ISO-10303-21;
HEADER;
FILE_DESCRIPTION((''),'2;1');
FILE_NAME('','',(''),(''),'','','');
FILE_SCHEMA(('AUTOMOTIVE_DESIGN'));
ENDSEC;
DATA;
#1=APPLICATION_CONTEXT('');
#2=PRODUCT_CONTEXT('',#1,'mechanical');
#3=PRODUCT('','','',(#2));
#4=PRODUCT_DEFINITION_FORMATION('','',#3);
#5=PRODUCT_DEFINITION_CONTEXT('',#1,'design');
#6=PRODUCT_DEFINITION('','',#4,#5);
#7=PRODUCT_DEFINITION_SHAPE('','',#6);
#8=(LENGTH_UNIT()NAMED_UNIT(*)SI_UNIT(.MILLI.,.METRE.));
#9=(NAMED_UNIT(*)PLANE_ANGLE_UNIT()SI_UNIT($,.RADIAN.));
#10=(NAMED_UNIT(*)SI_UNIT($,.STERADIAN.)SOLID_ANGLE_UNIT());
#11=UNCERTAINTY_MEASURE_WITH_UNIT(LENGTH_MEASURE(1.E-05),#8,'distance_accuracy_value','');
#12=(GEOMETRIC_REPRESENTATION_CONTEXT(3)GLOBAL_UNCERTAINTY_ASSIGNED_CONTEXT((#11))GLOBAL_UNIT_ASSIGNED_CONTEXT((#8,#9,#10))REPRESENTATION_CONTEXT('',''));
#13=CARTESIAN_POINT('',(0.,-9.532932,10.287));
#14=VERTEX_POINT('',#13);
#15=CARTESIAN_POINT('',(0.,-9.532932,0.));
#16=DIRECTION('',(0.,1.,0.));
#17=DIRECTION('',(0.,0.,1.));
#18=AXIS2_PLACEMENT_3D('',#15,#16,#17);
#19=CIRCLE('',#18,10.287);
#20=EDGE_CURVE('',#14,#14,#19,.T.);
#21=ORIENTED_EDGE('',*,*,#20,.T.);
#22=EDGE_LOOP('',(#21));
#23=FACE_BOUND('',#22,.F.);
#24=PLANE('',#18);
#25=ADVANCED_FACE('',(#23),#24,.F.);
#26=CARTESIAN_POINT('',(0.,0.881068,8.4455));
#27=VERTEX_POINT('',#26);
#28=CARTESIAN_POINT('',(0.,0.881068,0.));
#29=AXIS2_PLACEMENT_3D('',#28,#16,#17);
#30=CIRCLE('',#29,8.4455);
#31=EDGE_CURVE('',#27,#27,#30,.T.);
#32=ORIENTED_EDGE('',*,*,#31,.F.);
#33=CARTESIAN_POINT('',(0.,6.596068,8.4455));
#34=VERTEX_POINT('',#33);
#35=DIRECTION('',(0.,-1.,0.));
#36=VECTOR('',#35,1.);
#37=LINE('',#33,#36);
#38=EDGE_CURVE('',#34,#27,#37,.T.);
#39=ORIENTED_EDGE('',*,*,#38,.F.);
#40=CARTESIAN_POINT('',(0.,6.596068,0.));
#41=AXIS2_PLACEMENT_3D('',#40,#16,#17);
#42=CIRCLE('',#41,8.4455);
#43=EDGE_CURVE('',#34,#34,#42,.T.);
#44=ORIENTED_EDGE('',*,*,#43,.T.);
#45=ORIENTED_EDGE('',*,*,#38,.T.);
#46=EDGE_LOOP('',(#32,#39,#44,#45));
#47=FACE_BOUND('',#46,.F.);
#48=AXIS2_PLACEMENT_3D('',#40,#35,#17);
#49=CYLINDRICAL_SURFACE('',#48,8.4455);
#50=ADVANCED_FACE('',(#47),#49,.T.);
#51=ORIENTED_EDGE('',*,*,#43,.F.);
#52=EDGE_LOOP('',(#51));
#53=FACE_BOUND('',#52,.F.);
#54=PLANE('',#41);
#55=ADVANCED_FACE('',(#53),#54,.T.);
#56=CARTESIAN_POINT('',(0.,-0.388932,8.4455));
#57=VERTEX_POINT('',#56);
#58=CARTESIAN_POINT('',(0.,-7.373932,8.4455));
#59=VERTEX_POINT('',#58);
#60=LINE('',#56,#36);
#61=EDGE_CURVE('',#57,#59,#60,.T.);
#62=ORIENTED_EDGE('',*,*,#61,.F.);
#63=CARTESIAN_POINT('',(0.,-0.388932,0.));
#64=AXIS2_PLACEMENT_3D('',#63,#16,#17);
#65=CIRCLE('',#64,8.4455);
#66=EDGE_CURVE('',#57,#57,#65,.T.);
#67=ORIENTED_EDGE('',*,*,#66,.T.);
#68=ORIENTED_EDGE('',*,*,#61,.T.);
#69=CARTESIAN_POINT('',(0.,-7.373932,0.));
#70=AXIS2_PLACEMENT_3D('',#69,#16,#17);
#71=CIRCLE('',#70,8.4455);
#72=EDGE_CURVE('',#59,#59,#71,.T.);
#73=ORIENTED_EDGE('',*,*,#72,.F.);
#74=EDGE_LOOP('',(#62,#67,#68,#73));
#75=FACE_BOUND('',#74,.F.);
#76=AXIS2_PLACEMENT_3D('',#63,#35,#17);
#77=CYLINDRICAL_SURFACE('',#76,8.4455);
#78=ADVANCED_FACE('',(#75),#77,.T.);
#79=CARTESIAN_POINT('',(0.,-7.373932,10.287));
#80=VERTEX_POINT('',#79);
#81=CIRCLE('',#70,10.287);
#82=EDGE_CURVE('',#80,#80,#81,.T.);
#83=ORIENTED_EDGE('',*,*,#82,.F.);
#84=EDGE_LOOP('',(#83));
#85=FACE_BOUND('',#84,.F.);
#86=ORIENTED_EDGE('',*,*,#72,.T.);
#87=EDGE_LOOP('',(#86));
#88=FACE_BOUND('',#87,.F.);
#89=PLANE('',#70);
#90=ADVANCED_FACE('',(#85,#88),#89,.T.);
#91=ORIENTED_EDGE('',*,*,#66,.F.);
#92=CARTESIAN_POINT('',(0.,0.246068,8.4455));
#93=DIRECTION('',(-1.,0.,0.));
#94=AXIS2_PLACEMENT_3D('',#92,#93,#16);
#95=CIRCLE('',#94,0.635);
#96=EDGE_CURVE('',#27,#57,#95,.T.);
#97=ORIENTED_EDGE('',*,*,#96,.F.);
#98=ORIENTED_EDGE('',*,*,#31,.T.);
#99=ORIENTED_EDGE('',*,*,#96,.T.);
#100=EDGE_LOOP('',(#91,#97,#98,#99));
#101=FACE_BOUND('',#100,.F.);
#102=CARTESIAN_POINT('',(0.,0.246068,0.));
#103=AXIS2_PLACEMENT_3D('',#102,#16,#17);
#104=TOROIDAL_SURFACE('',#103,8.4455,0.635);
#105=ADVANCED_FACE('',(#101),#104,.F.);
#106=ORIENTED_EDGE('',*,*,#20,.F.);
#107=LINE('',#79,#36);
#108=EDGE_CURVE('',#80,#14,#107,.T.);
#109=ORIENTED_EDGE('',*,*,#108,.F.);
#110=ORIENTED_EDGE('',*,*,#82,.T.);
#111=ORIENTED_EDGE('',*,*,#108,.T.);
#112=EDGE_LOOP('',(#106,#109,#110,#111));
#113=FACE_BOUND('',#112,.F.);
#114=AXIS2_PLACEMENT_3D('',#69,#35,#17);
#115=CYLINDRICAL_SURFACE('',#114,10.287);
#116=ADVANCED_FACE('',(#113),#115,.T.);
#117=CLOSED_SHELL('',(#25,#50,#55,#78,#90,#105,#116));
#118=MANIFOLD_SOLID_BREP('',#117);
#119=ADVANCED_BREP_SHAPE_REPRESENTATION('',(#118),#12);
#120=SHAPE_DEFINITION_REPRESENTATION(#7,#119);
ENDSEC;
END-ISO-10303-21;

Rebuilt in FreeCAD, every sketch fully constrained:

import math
import FreeCAD as App
import Part
import Sketcher
from FreeCAD import Vector
Q = App.Units.Quantity

doc = App.newDocument("Part")
body = doc.addObject("PartDesign::Body", "Body")

sketch1 = doc.addObject("Sketcher::SketchObject", "Sketch")
body.addObject(sketch1)
sketch1.AttachmentSupport = (doc.YZ_Plane, [""])
sketch1.MapMode = "FlatFace"
sketch1.addGeometry([
    Part.LineSegment(Vector(-9.5, 10.3, 0), Vector(-9.5, 0, 0)),
    Part.LineSegment(Vector(-9.5, 0, 0), Vector(6.6, 0, 0)),
    Part.LineSegment(Vector(6.6, 0, 0), Vector(6.6, 8.4, 0)),
    Part.LineSegment(Vector(6.6, 8.4, 0), Vector(0.9, 8.4, 0)),
    Part.ArcOfCircle(Part.Circle(Vector(0.2, 8.4, 0), Vector(0, 0, 1), 0.6), math.radians(180), math.radians(360)),
    Part.LineSegment(Vector(-0.4, 8.4, 0), Vector(-7.4, 8.4, 0)),
    Part.LineSegment(Vector(-7.4, 8.4, 0), Vector(-7.4, 10.3, 0)),
    Part.LineSegment(Vector(-7.4, 10.3, 0), Vector(-9.5, 10.3, 0)),
], False)
sketch1.addConstraint([
    Sketcher.Constraint("Coincident", 0, 2, 1, 1),
    Sketcher.Constraint("Coincident", 1, 2, 2, 1),
    Sketcher.Constraint("Coincident", 2, 2, 3, 1),
    Sketcher.Constraint("Coincident", 3, 2, 4, 2),
    Sketcher.Constraint("Coincident", 4, 1, 5, 1),
    Sketcher.Constraint("Coincident", 5, 2, 6, 1),
    Sketcher.Constraint("Coincident", 6, 2, 7, 1),
    Sketcher.Constraint("Coincident", 7, 2, 0, 1),
    Sketcher.Constraint("Vertical", 0),
    Sketcher.Constraint("Horizontal", 1),
    Sketcher.Constraint("Vertical", 2),
    Sketcher.Constraint("Horizontal", 3),
    Sketcher.Constraint("Horizontal", 5),
    Sketcher.Constraint("Vertical", 6),
    Sketcher.Constraint("Horizontal", 7),
    Sketcher.Constraint("PointOnObject", 0, 2, -1),
    Sketcher.Constraint("Horizontal", 4, 3, 2, 2),
    Sketcher.Constraint("Horizontal", 3, 2, 4, 1),
    Sketcher.Constraint("Radius", 4, Q("0.025 in")),
    Sketcher.Constraint("DistanceX", 5, 2, 4, 3, Q("0.3 in")),
    Sketcher.Constraint("DistanceX", 1, 1, 1, 2, Q("0.635 in")),
    Sketcher.Constraint("DistanceX", 3, 2, 3, 1, Q("0.225 in")),
    Sketcher.Constraint("DistanceY", 0, 2, 0, 1, Q("0.405 in")),
    Sketcher.Constraint("DistanceY", 2, 1, 2, 2, Q("0.3325 in")),
    Sketcher.Constraint("DistanceX", -1, 1, 4, 3, Q("0.246068 mm")),
])
revolution = doc.addObject("PartDesign::Revolution", "Revolution")
body.addObject(revolution)
revolution.Profile = sketch1
revolution.ReferenceAxis = (sketch1, ["H_Axis"])
revolution.Angle = 360

doc.recompute()
